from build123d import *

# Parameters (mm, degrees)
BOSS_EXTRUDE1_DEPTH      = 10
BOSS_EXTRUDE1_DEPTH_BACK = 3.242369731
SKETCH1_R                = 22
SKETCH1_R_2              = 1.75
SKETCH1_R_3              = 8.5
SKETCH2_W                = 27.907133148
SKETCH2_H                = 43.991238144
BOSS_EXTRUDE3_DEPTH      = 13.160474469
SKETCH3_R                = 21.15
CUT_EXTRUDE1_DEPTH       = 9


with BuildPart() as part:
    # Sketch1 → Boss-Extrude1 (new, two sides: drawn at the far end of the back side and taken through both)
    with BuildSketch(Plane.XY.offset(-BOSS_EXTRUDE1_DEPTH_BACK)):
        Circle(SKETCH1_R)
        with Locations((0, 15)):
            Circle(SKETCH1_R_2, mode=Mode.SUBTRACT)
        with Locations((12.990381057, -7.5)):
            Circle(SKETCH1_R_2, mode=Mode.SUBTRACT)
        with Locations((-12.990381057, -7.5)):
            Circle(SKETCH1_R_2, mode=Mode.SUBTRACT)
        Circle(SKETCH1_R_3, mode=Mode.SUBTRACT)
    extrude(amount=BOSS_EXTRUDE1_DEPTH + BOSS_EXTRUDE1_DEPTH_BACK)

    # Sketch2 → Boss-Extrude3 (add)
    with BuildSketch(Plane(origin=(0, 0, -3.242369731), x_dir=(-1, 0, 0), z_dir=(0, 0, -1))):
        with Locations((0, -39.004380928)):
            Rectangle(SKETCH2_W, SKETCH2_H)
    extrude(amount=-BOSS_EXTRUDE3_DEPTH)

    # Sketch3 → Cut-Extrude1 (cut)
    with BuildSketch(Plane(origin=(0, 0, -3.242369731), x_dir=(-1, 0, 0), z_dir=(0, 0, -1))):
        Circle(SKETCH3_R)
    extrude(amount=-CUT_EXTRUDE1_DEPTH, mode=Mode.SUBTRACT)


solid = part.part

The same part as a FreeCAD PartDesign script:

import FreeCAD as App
import Part
import Sketcher

V = App.Vector
Q = App.Units.Quantity

doc = App.newDocument("Part")
params = doc.addObject("Spreadsheet::Sheet", "Params")
for row, (alias, value) in enumerate([
    ("sketch1_diameter", "44 mm"),
    ("sketch1_diameter2", "17 mm"),
    ("sketch1_diameter3", "3.5 mm"),
    ("pad1_length", "10 mm"),
    ("pad1_length2", "3.24237 mm"),
    ("pad2_length", "13.160474 mm"),
    ("sketch3_diameter", "42.3 mm"),
    ("pocket1_length", "9 mm"),
], start=1):
    params.set(f"A{row}", alias)
    params.set(f"B{row}", "=" + value)
    params.setAlias(f"B{row}", alias)

body = doc.addObject("PartDesign::Body", "Body")

# Sketch on XY plane
sketch1 = body.newObject("Sketcher::SketchObject", "Sketch")
sketch1.AttachmentSupport = (doc.getObject("XY_Plane"), [""])
sketch1.MapMode = "FlatFace"
sketch1.addGeometry(Part.Circle(V(0, 0, 0), V(0, 0, 1), 22), False)
sketch1.addGeometry(Part.Circle(V(-12.990381, -7.5, 0), V(0, 0, 1), 1.75), False)
sketch1.addGeometry(Part.Circle(V(12.990381, -7.5, 0), V(0, 0, 1), 1.75), False)
sketch1.addGeometry(Part.Circle(V(0, 0, 0), V(0, 0, 1), 8.5), False)
sketch1.addGeometry(Part.Circle(V(0, 15, 0), V(0, 0, 1), 1.75), False)
sketch1.addConstraint(Sketcher.Constraint("Coincident", 0, 3, -1, 1))
sketch1.addConstraint(Sketcher.Constraint("Coincident", 3, 3, -1, 1))
sketch1.addConstraint(Sketcher.Constraint("Equal", 1, 2))
sketch1.addConstraint(Sketcher.Constraint("Equal", 2, 4))
sketch1.addConstraint(Sketcher.Constraint("Symmetric", 1, 3, 2, 3, -2))
sketch1.addConstraint(Sketcher.Constraint("PointOnObject", 4, 3, -2))
sketch1.addConstraint(Sketcher.Constraint("Diameter", 0, Q("44 mm")))
sketch1.addConstraint(Sketcher.Constraint("Diameter", 3, Q("17 mm")))
sketch1.addConstraint(Sketcher.Constraint("Diameter", 1, Q("3.5 mm")))
sketch1.addConstraint(Sketcher.Constraint("DistanceY", -1, 1, 4, 3, Q("15 mm")))
sketch1.addConstraint(Sketcher.Constraint("DistanceY", 1, 3, -1, 1, Q("7.5 mm")))
sketch1.addConstraint(Sketcher.Constraint("DistanceX", 1, 3, -1, 1, Q("12.990381 mm")))
sketch1.setExpression("Constraints[6]", "Params.sketch1_diameter")
sketch1.setExpression("Constraints[7]", "Params.sketch1_diameter2")
sketch1.setExpression("Constraints[8]", "Params.sketch1_diameter3")
pad1 = body.newObject("PartDesign::Pad", "Pad")
pad1.Profile = sketch1
pad1.Type = "TwoLengths"
pad1.setExpression("Length", "Params.pad1_length")
pad1.setExpression("Length2", "Params.pad1_length2")

# Sketch on XY plane
sketch2 = body.newObject("Sketcher::SketchObject", "Sketch001")
sketch2.AttachmentSupport = (doc.getObject("XY_Plane"), [""])
sketch2.MapMode = "FlatFace"
sketch2.AttachmentOffset = App.Placement(V(0, 0, -3.24237), App.Rotation())
sketch2.addGeometry(Part.LineSegment(V(13.953567, -17.008762, 0), V(13.953567, -61, 0)), False)
sketch2.addGeometry(Part.LineSegment(V(13.953567, -61, 0), V(-13.953567, -61, 0)), False)
sketch2.addGeometry(Part.LineSegment(V(-13.953567, -61, 0), V(-13.953567, -17.008762, 0)), False)
sketch2.addGeometry(Part.LineSegment(V(-13.953567, -17.008762, 0), V(13.953567, -17.008762, 0)), False)
sketch2.addConstraint(Sketcher.Constraint("Coincident", 0, 2, 1, 1))
sketch2.addConstraint(Sketcher.Constraint("Coincident", 1, 2, 2, 1))
sketch2.addConstraint(Sketcher.Constraint("Coincident", 2, 2, 3, 1))
sketch2.addConstraint(Sketcher.Constraint("Coincident", 3, 2, 0, 1))
sketch2.addConstraint(Sketcher.Constraint("Vertical", 0))
sketch2.addConstraint(Sketcher.Constraint("Horizontal", 1))
sketch2.addConstraint(Sketcher.Constraint("Vertical", 2))
sketch2.addConstraint(Sketcher.Constraint("Horizontal", 3))
sketch2.addConstraint(Sketcher.Constraint("DistanceY", 0, 2, -1, 1, Q("61 mm")))
sketch2.addConstraint(Sketcher.Constraint("DistanceY", 0, 2, 0, 1, Q("43.991238 mm")))
sketch2.addConstraint(Sketcher.Constraint("DistanceX", 1, 2, 1, 1, Q("27.907133 mm")))
sketch2.addConstraint(Sketcher.Constraint("DistanceX", -1, 1, 0, 2, Q("13.953567 mm")))
pad2 = body.newObject("PartDesign::Pad", "Pad001")
pad2.Profile = sketch2
pad2.setExpression("Length", "Params.pad2_length")

# Sketch on XY plane
sketch3 = body.newObject("Sketcher::SketchObject", "Sketch002")
sketch3.AttachmentSupport = (doc.getObject("XY_Plane"), [""])
sketch3.MapMode = "FlatFace"
sketch3.AttachmentOffset = App.Placement(V(0, 0, -3.24237), App.Rotation())
sketch3.addGeometry(Part.Circle(V(0, 0, 0), V(0, 0, 1), 21.15), False)
sketch3.addConstraint(Sketcher.Constraint("Coincident", 0, 3, -1, 1))
sketch3.addConstraint(Sketcher.Constraint("Diameter", 0, Q("42.3 mm")))
sketch3.setExpression("Constraints[1]", "Params.sketch3_diameter")
pocket1 = body.newObject("PartDesign::Pocket", "Pocket")
pocket1.Profile = sketch3
pocket1.setExpression("Length", "Params.pocket1_length")
pocket1.Reversed = True

doc.recompute()
